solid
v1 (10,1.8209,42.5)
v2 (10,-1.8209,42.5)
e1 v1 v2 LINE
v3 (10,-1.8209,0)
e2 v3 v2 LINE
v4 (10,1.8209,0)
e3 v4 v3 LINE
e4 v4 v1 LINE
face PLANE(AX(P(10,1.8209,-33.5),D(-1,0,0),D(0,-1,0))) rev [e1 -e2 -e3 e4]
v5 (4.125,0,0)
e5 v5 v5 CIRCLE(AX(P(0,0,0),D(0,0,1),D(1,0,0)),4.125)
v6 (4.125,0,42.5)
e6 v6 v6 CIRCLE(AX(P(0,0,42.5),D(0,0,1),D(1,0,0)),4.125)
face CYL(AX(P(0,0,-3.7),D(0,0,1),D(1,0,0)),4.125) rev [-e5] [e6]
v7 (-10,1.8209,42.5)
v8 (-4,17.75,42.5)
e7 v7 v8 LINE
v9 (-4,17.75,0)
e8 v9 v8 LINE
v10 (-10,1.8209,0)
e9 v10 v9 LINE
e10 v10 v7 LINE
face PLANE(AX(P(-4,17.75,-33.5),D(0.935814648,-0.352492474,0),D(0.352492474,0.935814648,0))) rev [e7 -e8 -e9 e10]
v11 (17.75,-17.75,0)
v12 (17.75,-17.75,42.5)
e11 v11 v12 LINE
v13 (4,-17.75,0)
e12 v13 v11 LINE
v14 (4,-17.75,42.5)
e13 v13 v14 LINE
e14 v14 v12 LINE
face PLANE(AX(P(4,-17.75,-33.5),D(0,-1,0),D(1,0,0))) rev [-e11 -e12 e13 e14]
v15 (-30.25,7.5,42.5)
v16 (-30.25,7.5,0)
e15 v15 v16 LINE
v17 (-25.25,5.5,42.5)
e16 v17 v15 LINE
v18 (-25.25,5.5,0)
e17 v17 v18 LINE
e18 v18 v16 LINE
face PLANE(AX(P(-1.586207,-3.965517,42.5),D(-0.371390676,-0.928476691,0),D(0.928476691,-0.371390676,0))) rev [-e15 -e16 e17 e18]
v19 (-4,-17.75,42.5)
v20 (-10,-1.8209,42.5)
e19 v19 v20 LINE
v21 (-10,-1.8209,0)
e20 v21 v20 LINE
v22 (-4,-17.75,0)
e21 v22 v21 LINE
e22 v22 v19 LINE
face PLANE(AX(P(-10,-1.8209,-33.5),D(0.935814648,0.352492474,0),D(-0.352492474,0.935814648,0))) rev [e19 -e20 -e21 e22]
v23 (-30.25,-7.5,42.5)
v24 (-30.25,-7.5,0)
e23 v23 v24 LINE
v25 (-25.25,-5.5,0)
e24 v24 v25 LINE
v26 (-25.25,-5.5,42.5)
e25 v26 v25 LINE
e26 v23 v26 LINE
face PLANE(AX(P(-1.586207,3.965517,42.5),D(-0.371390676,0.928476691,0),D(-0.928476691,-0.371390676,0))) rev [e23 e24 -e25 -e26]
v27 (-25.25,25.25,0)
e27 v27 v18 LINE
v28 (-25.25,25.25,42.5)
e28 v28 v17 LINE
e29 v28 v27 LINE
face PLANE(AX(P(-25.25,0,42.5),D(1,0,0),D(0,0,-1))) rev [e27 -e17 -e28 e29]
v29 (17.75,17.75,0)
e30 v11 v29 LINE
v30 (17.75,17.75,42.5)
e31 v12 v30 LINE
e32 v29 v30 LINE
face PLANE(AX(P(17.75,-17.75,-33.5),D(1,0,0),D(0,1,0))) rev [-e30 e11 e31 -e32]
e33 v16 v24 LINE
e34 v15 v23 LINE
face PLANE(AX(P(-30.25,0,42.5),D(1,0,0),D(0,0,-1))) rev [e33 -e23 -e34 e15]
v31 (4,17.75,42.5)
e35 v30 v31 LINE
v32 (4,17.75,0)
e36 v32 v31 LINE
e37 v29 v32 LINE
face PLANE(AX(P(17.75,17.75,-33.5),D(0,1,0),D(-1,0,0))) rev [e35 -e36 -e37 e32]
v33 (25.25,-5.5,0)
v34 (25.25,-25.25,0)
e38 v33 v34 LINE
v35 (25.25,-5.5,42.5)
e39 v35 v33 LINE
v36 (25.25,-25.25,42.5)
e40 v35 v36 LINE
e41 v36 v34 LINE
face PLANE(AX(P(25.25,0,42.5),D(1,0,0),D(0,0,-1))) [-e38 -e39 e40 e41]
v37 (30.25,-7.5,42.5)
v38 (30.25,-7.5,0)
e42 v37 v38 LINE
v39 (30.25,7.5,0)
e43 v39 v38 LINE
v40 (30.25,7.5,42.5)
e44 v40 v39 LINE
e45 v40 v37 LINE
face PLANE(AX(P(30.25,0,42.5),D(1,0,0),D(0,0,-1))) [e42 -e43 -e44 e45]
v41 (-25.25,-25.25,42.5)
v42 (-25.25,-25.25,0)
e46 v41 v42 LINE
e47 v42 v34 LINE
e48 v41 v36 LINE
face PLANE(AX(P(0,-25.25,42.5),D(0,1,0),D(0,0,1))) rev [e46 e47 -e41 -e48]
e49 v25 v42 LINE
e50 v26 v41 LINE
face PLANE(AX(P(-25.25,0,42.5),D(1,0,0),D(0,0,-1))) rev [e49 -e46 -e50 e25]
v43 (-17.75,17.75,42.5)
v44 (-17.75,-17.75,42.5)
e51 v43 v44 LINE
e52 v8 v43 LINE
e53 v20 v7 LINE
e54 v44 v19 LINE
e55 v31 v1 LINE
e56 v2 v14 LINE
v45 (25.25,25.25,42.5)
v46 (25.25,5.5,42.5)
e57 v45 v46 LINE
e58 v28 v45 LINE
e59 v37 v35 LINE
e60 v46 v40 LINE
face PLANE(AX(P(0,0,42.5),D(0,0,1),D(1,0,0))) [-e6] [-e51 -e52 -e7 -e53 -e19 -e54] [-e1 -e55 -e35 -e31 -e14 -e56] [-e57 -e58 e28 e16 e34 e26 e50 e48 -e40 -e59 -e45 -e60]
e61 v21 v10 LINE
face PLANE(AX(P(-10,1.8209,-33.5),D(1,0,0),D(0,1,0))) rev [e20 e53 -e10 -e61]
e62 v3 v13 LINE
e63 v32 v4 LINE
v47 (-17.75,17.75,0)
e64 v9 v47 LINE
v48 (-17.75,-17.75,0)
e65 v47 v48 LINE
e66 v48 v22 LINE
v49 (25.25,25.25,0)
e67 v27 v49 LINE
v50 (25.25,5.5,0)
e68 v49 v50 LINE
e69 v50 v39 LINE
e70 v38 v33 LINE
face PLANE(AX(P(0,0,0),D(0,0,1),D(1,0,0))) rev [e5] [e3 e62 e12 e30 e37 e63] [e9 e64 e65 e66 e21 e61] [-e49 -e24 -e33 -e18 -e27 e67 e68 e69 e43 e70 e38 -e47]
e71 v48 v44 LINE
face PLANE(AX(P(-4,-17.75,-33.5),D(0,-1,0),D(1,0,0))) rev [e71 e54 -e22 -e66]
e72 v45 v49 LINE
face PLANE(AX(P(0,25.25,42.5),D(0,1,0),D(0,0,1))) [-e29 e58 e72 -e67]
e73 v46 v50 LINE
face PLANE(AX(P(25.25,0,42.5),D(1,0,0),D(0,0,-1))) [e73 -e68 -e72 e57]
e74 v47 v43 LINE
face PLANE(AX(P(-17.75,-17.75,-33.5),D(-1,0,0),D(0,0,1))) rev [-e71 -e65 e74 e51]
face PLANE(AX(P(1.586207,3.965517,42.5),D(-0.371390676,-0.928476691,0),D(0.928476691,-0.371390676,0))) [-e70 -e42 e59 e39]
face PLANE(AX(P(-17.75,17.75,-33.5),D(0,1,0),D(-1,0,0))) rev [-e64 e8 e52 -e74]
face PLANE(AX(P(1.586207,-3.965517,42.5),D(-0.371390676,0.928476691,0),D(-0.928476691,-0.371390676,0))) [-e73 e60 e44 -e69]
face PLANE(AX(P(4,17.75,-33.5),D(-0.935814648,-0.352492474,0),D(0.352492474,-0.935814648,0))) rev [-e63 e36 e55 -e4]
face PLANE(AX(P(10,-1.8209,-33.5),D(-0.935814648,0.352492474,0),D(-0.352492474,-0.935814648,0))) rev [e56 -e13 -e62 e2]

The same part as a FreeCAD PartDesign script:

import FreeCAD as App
import Part
import Sketcher


def add_polygon(sketch, points):
    """Adds a closed chain of lines whose ends are joined by coincident constraints."""
    first, n = sketch.GeometryCount, len(points)
    for a, b in zip(points, points[1:] + points[:1]):
        sketch.addGeometry(Part.LineSegment(App.Vector(*a, 0), App.Vector(*b, 0)), False)
    for i in range(n):
        sketch.addConstraint(Sketcher.Constraint("Coincident", first + i, 2, first + (i + 1) % n, 1))

doc = App.newDocument("Part")
body = doc.addObject("PartDesign::Body", "Body")

# Sketch on XY plane
sketch1 = doc.addObject("Sketcher::SketchObject", "Sketch")
body.addObject(sketch1)
sketch1.AttachmentSupport = (doc.XY_Plane, [""])
sketch1.MapMode = "FlatFace"
add_polygon(sketch1, [(-25.25, -5.5), (-25.25, -25.25), (25.25, -25.25), (25.25, -5.5), (30.25, -7.5), (30.25, 7.5), (25.25, 5.5), (25.25, 25.25), (-25.25, 25.25), (-25.25, 5.5), (-30.25, 7.5), (-30.25, -7.5)])  # lines 0-11
sketch1.addConstraint([
    Sketcher.Constraint("Vertical", 0),
    Sketcher.Constraint("Horizontal", 1),
    Sketcher.Constraint("Vertical", 2),
    Sketcher.Constraint("Vertical", 4),
    Sketcher.Constraint("Vertical", 6),
    Sketcher.Constraint("Horizontal", 7),
    Sketcher.Constraint("Vertical", 8),
    Sketcher.Constraint("Vertical", 10),
    Sketcher.Constraint("Symmetric", 0, 2, 6, 2, -1, 1),
    Sketcher.Constraint("Symmetric", 2, 2, 8, 2, -1, 1),
    Sketcher.Constraint("Symmetric", 3, 2, 9, 2, -1, 1),
    Sketcher.Constraint("Symmetric", 5, 2, 8, 2, -2),
    Sketcher.Constraint("Parallel", 5, 11),
    Sketcher.Constraint("Horizontal", 4, 2, 9, 2),
    Sketcher.Constraint("Horizontal", 3, 2, 10, 2),
    Sketcher.Constraint("DistanceY", 4, 1, 4, 2, 15.0),
    Sketcher.Constraint("DistanceX", 1, 1, 1, 2, 50.5),
    Sketcher.Constraint("DistanceX", 2, 2, 3, 2, 5.0),
    Sketcher.Constraint("DistanceY", 3, 2, 2, 2, 2.0),
    Sketcher.Constraint("DistanceY", 0, 2, 0, 1, 19.75),
])
pad1 = doc.addObject("PartDesign::Pad", "Pad")
body.addObject(pad1)
pad1.Profile = sketch1
pad1.Length = 42.5

# Sketch on XY plane
sketch2 = doc.addObject("Sketcher::SketchObject", "Sketch001")
body.addObject(sketch2)
sketch2.AttachmentSupport = (doc.XY_Plane, [""])
sketch2.MapMode = "FlatFace"
sketch2.AttachmentOffset = App.Placement(App.Vector(0, 0, 42.5), App.Rotation())
sketch2.addGeometry(Part.Circle(App.Vector(0, 0, 0), App.Vector(0, 0, 1), 4.125), False)
sketch2.addConstraint([
    Sketcher.Constraint("Coincident", 0, 3, -1, 1),
    Sketcher.Constraint("Diameter", 0, 8.25),
])
pocket1 = doc.addObject("PartDesign::Pocket", "Pocket")
body.addObject(pocket1)
pocket1.Profile = sketch2
pocket1.Length = 46.2

# Sketch on XY plane
sketch3 = doc.addObject("Sketcher::SketchObject", "Sketch002")
body.addObject(sketch3)
sketch3.AttachmentSupport = (doc.XY_Plane, [""])
sketch3.MapMode = "FlatFace"
sketch3.AttachmentOffset = App.Placement(App.Vector(0, 0, 42.5), App.Rotation())
add_polygon(sketch3, [(-17.75, 17.75), (-17.75, -17.75), (-4, -17.75), (-10, -1.8209), (-10, 1.8209), (-4, 17.75)])  # lines 0-5
add_polygon(sketch3, [(10, -1.8209), (4, -17.75), (17.75, -17.75), (17.75, 17.75), (4, 17.75), (10, 1.8209)])  # lines 6-11
sketch3.addConstraint([
    Sketcher.Constraint("Vertical", 0),
    Sketcher.Constraint("Horizontal", 1),
    Sketcher.Constraint("Vertical", 3),
    Sketcher.Constraint("Horizontal", 5),
    Sketcher.Constraint("Horizontal", 7),
    Sketcher.Constraint("Vertical", 8),
    Sketcher.Constraint("Horizontal", 9),
    Sketcher.Constraint("Vertical", 11),
    Sketcher.Constraint("Symmetric", 4, 2, 6, 2, -1, 1),
    Sketcher.Constraint("Symmetric", 0, 2, 8, 2, -1, 1),
    Sketcher.Constraint("Symmetric", 2, 2, 10, 2, -1, 1),
    Sketcher.Constraint("Symmetric", 1, 2, 6, 2, -2),
    Sketcher.Constraint("Parallel", 4, 6),
    Sketcher.Constraint("Parallel", 2, 10),
    Sketcher.Constraint("Horizontal", 3, 2, 10, 2),
    Sketcher.Constraint("DistanceY", 0, 2, 0, 1, 35.5),
    Sketcher.Constraint("DistanceX", 1, 2, -1, 1, 4.0),
    Sketcher.Constraint("DistanceX", 2, 2, -1, 1, 10.0),
    Sketcher.Constraint("DistanceX", 1, 1, 1, 2, 13.75),
    Sketcher.Constraint("DistanceY", 3, 1, 3, 2, 3.6418),
])
pocket2 = doc.addObject("PartDesign::Pocket", "Pocket001")
body.addObject(pocket2)
pocket2.Profile = sketch3
pocket2.Length = 76

doc.recompute()
